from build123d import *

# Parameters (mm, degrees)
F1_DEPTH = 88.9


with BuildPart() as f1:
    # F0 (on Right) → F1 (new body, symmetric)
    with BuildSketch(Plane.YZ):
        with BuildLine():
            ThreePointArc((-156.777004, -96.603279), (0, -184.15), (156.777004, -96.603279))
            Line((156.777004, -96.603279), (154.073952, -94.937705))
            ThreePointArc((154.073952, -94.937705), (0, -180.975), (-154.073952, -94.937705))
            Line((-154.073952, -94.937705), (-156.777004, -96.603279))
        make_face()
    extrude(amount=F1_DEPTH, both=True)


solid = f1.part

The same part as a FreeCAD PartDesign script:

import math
import FreeCAD as App
import Part
import Sketcher
Q = App.Units.Quantity

doc = App.newDocument("Part")
body = doc.addObject("PartDesign::Body", "Body")

sketch1 = body.newObject("Sketcher::SketchObject", "Sketch")
sketch1.AttachmentSupport = (doc.getObject("YZ_Plane"), [""])
sketch1.MapMode = "FlatFace"
sketch1.addGeometry(Part.ArcOfCircle(Part.Circle(App.Vector(0, 0, 0), App.Vector(0, 0, 1), 184.1), math.radians(-148), math.radians(-32)), False)
sketch1.addGeometry(Part.LineSegment(App.Vector(156.8, -96.6, 0), App.Vector(154.1, -94.9, 0)), False)
sketch1.addGeometry(Part.ArcOfCircle(Part.Circle(App.Vector(0, 0, 0), App.Vector(0, 0, 1), 181), math.radians(-148), math.radians(-32)), False)
sketch1.addGeometry(Part.LineSegment(App.Vector(-154.1, -94.9, 0), App.Vector(-156.8, -96.6, 0)), False)
sketch1.addConstraint(Sketcher.Constraint("Coincident", 0, 2, 1, 1))
sketch1.addConstraint(Sketcher.Constraint("Coincident", 1, 2, 2, 2))
sketch1.addConstraint(Sketcher.Constraint("Coincident", 2, 1, 3, 1))
sketch1.addConstraint(Sketcher.Constraint("Coincident", 3, 2, 0, 1))
sketch1.addConstraint(Sketcher.Constraint("Coincident", 0, 3, -1, 1))
sketch1.addConstraint(Sketcher.Constraint("Coincident", 2, 3, -1, 1))
sketch1.addConstraint(Sketcher.Constraint("Horizontal", 1, 2, 2, 1))
sketch1.addConstraint(Sketcher.Constraint("Horizontal", 0, 2, 3, 2))
sketch1.addConstraint(Sketcher.Constraint("Radius", 0, Q("7.25 in")))
sketch1.addConstraint(Sketcher.Constraint("Radius", 2, Q("7.125 in")))
sketch1.addConstraint(Sketcher.Constraint("DistanceY", 0, 2, -1, 1, Q("96.603279 mm")))
sketch1.addConstraint(Sketcher.Constraint("DistanceX", -1, 1, 1, 2, Q("154.073952 mm")))
pad1 = body.newObject("PartDesign::Pad", "Pad")
pad1.Profile = sketch1
pad1.Length = Q("7 in")
pad1.Midplane = True

doc.recompute()
